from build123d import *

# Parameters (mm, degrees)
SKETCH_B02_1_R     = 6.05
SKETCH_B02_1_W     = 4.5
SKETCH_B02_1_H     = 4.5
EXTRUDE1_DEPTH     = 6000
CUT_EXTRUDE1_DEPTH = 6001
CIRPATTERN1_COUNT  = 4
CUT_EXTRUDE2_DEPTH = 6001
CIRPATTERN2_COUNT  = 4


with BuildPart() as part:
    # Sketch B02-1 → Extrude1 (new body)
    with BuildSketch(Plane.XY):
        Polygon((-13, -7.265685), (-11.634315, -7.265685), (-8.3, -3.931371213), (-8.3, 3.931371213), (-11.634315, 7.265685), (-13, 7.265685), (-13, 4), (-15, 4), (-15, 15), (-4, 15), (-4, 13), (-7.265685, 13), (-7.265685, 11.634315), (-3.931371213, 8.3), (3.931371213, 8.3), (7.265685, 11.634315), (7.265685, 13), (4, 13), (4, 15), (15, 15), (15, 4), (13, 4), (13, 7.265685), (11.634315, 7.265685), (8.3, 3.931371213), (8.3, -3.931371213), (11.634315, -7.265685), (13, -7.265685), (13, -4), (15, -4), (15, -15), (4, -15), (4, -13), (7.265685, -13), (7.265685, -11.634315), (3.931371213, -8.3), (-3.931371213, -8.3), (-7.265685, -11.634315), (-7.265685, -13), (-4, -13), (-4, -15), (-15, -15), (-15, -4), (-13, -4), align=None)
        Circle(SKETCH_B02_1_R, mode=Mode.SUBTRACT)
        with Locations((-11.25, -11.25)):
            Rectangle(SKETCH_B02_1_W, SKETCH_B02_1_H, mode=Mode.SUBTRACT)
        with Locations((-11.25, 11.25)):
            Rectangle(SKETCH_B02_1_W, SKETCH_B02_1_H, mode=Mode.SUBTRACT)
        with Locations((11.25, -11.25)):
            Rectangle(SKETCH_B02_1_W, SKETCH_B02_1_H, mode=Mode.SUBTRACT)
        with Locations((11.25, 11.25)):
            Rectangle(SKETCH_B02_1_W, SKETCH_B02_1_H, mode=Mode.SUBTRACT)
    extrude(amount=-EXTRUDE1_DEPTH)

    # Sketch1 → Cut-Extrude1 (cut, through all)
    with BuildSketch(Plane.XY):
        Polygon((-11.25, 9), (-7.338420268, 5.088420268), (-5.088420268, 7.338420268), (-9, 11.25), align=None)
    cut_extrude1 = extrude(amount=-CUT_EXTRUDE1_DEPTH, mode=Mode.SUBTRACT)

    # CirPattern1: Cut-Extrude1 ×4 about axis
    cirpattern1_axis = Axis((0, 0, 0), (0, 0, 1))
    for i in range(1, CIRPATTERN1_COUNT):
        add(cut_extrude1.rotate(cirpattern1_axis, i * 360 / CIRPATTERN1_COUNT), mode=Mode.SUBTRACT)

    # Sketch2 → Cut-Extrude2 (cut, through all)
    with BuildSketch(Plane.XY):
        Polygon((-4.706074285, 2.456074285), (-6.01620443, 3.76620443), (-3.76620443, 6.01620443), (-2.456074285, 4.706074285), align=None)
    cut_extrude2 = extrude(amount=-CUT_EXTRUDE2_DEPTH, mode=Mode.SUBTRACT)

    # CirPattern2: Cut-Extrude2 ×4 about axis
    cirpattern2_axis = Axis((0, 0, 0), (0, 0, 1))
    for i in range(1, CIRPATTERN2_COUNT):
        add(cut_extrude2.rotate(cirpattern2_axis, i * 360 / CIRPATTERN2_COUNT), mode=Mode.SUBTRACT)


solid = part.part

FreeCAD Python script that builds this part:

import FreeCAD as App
import Part
import Sketcher

V = App.Vector
Q = App.Units.Quantity

doc = App.newDocument("Part")
body = doc.addObject("PartDesign::Body", "Body")

# Sketch on XY plane
sketch1 = body.newObject("Sketcher::SketchObject", "Sketch")
sketch1.AttachmentSupport = (doc.getObject("XY_Plane"), [""])
sketch1.MapMode = "FlatFace"
sketch1.addGeometry([
    Part.LineSegment(V(-11.634315, -7.265685, 0), V(-13, -7.265685, 0)),  # 0
    Part.LineSegment(V(-13, -7.265685, 0), V(-13, -4, 0)),  # 1
    Part.LineSegment(V(-13, -4, 0), V(-15, -4, 0)),  # 2
    Part.LineSegment(V(-15, -4, 0), V(-15, -15, 0)),  # 3
    Part.LineSegment(V(-15, -15, 0), V(-4, -15, 0)),  # 4
    Part.LineSegment(V(-4, -15, 0), V(-4, -13, 0)),  # 5
    Part.LineSegment(V(-4, -13, 0), V(-7.265685, -13, 0)),  # 6
    Part.LineSegment(V(-7.265685, -13, 0), V(-7.265685, -11.634315, 0)),  # 7
    Part.LineSegment(V(-7.265685, -11.634315, 0), V(-3.931371, -8.3, 0)),  # 8
    Part.LineSegment(V(-3.931371, -8.3, 0), V(3.931371, -8.3, 0)),  # 9
    Part.LineSegment(V(3.931371, -8.3, 0), V(7.265685, -11.634315, 0)),  # 10
    Part.LineSegment(V(7.265685, -11.634315, 0), V(7.265685, -13, 0)),  # 11
    Part.LineSegment(V(7.265685, -13, 0), V(4, -13, 0)),  # 12
    Part.LineSegment(V(4, -13, 0), V(4, -15, 0)),  # 13
    Part.LineSegment(V(4, -15, 0), V(15, -15, 0)),  # 14
    Part.LineSegment(V(15, -15, 0), V(15, -4, 0)),  # 15
    Part.LineSegment(V(15, -4, 0), V(13, -4, 0)),  # 16
    Part.LineSegment(V(13, -4, 0), V(13, -7.265685, 0)),  # 17
    Part.LineSegment(V(13, -7.265685, 0), V(11.634315, -7.265685, 0)),  # 18
    Part.LineSegment(V(11.634315, -7.265685, 0), V(8.3, -3.931371, 0)),  # 19
    Part.LineSegment(V(8.3, -3.931371, 0), V(8.3, 3.931371, 0)),  # 20
    Part.LineSegment(V(8.3, 3.931371, 0), V(11.634315, 7.265685, 0)),  # 21
    Part.LineSegment(V(11.634315, 7.265685, 0), V(13, 7.265685, 0)),  # 22
    Part.LineSegment(V(13, 7.265685, 0), V(13, 4, 0)),  # 23
    Part.LineSegment(V(13, 4, 0), V(15, 4, 0)),  # 24
    Part.LineSegment(V(15, 4, 0), V(15, 15, 0)),  # 25
    Part.LineSegment(V(15, 15, 0), V(4, 15, 0)),  # 26
    Part.LineSegment(V(4, 15, 0), V(4, 13, 0)),  # 27
    Part.LineSegment(V(4, 13, 0), V(7.265685, 13, 0)),  # 28
    Part.LineSegment(V(7.265685, 13, 0), V(7.265685, 11.634315, 0)),  # 29
    Part.LineSegment(V(7.265685, 11.634315, 0), V(3.931371, 8.3, 0)),  # 30
    Part.LineSegment(V(3.931371, 8.3, 0), V(-3.931371, 8.3, 0)),  # 31
    Part.LineSegment(V(-3.931371, 8.3, 0), V(-7.265685, 11.634315, 0)),  # 32
    Part.LineSegment(V(-7.265685, 11.634315, 0), V(-7.265685, 13, 0)),  # 33
    Part.LineSegment(V(-7.265685, 13, 0), V(-4, 13, 0)),  # 34
    Part.LineSegment(V(-4, 13, 0), V(-4, 15, 0)),  # 35
    Part.LineSegment(V(-4, 15, 0), V(-15, 15, 0)),  # 36
    Part.LineSegment(V(-15, 15, 0), V(-15, 4, 0)),  # 37
    Part.LineSegment(V(-15, 4, 0), V(-13, 4, 0)),  # 38
    Part.LineSegment(V(-13, 4, 0), V(-13, 7.265685, 0)),  # 39
    Part.LineSegment(V(-13, 7.265685, 0), V(-11.634315, 7.265685, 0)),  # 40
    Part.LineSegment(V(-11.634315, 7.265685, 0), V(-8.3, 3.931371, 0)),  # 41
    Part.LineSegment(V(-8.3, 3.931371, 0), V(-8.3, -3.931371, 0)),  # 42
    Part.LineSegment(V(-8.3, -3.931371, 0), V(-11.634315, -7.265685, 0)),  # 43
    Part.LineSegment(V(9, -13.5, 0), V(9, -9, 0)),  # 44
    Part.LineSegment(V(9, -9, 0), V(13.5, -9, 0)),  # 45
    Part.LineSegment(V(13.5, -9, 0), V(13.5, -13.5, 0)),  # 46
    Part.LineSegment(V(13.5, -13.5, 0), V(9, -13.5, 0)),  # 47
    Part.LineSegment(V(-13.5, -13.5, 0), V(-13.5, -9, 0)),  # 48
    Part.LineSegment(V(-13.5, -9, 0), V(-9, -9, 0)),  # 49
    Part.LineSegment(V(-9, -9, 0), V(-9, -13.5, 0)),  # 50
    Part.LineSegment(V(-9, -13.5, 0), V(-13.5, -13.5, 0)),  # 51
    Part.LineSegment(V(9, 9, 0), V(9, 13.5, 0)),  # 52
    Part.LineSegment(V(9, 13.5, 0), V(13.5, 13.5, 0)),  # 53
    Part.LineSegment(V(13.5, 13.5, 0), V(13.5, 9, 0)),  # 54
    Part.LineSegment(V(13.5, 9, 0), V(9, 9, 0)),  # 55
    Part.Circle(V(0, 0, 0), V(0, 0, 1), 6.05),  # 56
    Part.LineSegment(V(-13.5, 9, 0), V(-13.5, 13.5, 0)),  # 57
    Part.LineSegment(V(-13.5, 13.5, 0), V(-9, 13.5, 0)),  # 58
    Part.LineSegment(V(-9, 13.5, 0), V(-9, 9, 0)),  # 59
    Part.LineSegment(V(-9, 9, 0), V(-13.5, 9, 0)),  # 60
], False)
sketch1.addConstraint([
    Sketcher.Constraint("Coincident", 0, 2, 1, 1),
    Sketcher.Constraint("Coincident", 1, 2, 2, 1),
    Sketcher.Constraint("Coincident", 2, 2, 3, 1),
    Sketcher.Constraint("Coincident", 3, 2, 4, 1),
    Sketcher.Constraint("Coincident", 4, 2, 5, 1),
    Sketcher.Constraint("Coincident", 5, 2, 6, 1),
    Sketcher.Constraint("Coincident", 6, 2, 7, 1),
    Sketcher.Constraint("Coincident", 7, 2, 8, 1),
    Sketcher.Constraint("Coincident", 8, 2, 9, 1),
    Sketcher.Constraint("Coincident", 9, 2, 10, 1),
    Sketcher.Constraint("Coincident", 10, 2, 11, 1),
    Sketcher.Constraint("Coincident", 11, 2, 12, 1),
    Sketcher.Constraint("Coincident", 12, 2, 13, 1),
    Sketcher.Constraint("Coincident", 13, 2, 14, 1),
    Sketcher.Constraint("Coincident", 14, 2, 15, 1),
    Sketcher.Constraint("Coincident", 15, 2, 16, 1),
    Sketcher.Constraint("Coincident", 16, 2, 17, 1),
    Sketcher.Constraint("Coincident", 17, 2, 18, 1),
    Sketcher.Constraint("Coincident", 18, 2, 19, 1),
    Sketcher.Constraint("Coincident", 19, 2, 20, 1),
    Sketcher.Constraint("Coincident", 20, 2, 21, 1),
    Sketcher.Constraint("Coincident", 21, 2, 22, 1),
    Sketcher.Constraint("Coincident", 22, 2, 23, 1),
    Sketcher.Constraint("Coincident", 23, 2, 24, 1),
    Sketcher.Constraint("Coincident", 24, 2, 25, 1),
    Sketcher.Constraint("Coincident", 25, 2, 26, 1),
    Sketcher.Constraint("Coincident", 26, 2, 27, 1),
    Sketcher.Constraint("Coincident", 27, 2, 28, 1),
    Sketcher.Constraint("Coincident", 28, 2, 29, 1),
    Sketcher.Constraint("Coincident", 29, 2, 30, 1),
    Sketcher.Constraint("Coincident", 30, 2, 31, 1),
    Sketcher.Constraint("Coincident", 31, 2, 32, 1),
    Sketcher.Constraint("Coincident", 32, 2, 33, 1),
    Sketcher.Constraint("Coincident", 33, 2, 34, 1),
    Sketcher.Constraint("Coincident", 34, 2, 35, 1),
    Sketcher.Constraint("Coincident", 35, 2, 36, 1),
    Sketcher.Constraint("Coincident", 36, 2, 37, 1),
    Sketcher.Constraint("Coincident", 37, 2, 38, 1),
    Sketcher.Constraint("Coincident", 38, 2, 39, 1),
    Sketcher.Constraint("Coincident", 39, 2, 40, 1),
    Sketcher.Constraint("Coincident", 40, 2, 41, 1),
    Sketcher.Constraint("Coincident", 41, 2, 42, 1),
    Sketcher.Constraint("Coincident", 42, 2, 43, 1),
    Sketcher.Constraint("Coincident", 43, 2, 0, 1),
    Sketcher.Constraint("Coincident", 44, 2, 45, 1),
    Sketcher.Constraint("Coincident", 45, 2, 46, 1),
    Sketcher.Constraint("Coincident", 46, 2, 47, 1),
    Sketcher.Constraint("Coincident", 47, 2, 44, 1),
    Sketcher.Constraint("Coincident", 48, 2, 49, 1),
    Sketcher.Constraint("Coincident", 49, 2, 50, 1),
    Sketcher.Constraint("Coincident", 50, 2, 51, 1),
    Sketcher.Constraint("Coincident", 51, 2, 48, 1),
    Sketcher.Constraint("Coincident", 52, 2, 53, 1),
    Sketcher.Constraint("Coincident", 53, 2, 54, 1),
    Sketcher.Constraint("Coincident", 54, 2, 55, 1),
    Sketcher.Constraint("Coincident", 55, 2, 52, 1),
    Sketcher.Constraint("Coincident", 57, 2, 58, 1),
    Sketcher.Constraint("Coincident", 58, 2, 59, 1),
    Sketcher.Constraint("Coincident", 59, 2, 60, 1),
    Sketcher.Constraint("Coincident", 60, 2, 57, 1),
    Sketcher.Constraint("Horizontal", 0),
    Sketcher.Constraint("Vertical", 1),
    Sketcher.Constraint("Horizontal", 2),
    Sketcher.Constraint("Vertical", 3),
    Sketcher.Constraint("Horizontal", 4),
    Sketcher.Constraint("Vertical", 5),
    Sketcher.Constraint("Horizontal", 6),
    Sketcher.Constraint("Vertical", 7),
    Sketcher.Constraint("Horizontal", 9),
    Sketcher.Constraint("Vertical", 11),
    Sketcher.Constraint("Horizontal", 12),
    Sketcher.Constraint("Vertical", 13),
    Sketcher.Constraint("Horizontal", 14),
    Sketcher.Constraint("Vertical", 15),
    Sketcher.Constraint("Horizontal", 16),
    Sketcher.Constraint("Vertical", 17),
    Sketcher.Constraint("Horizontal", 18),
    Sketcher.Constraint("Vertical", 20),
    Sketcher.Constraint("Horizontal", 22),
    Sketcher.Constraint("Vertical", 23),
    Sketcher.Constraint("Horizontal", 24),
    Sketcher.Constraint("Vertical", 25),
    Sketcher.Constraint("Horizontal", 26),
    Sketcher.Constraint("Vertical", 27),
    Sketcher.Constraint("Horizontal", 28),
    Sketcher.Constraint("Vertical", 29),
    Sketcher.Constraint("Horizontal", 31),
    Sketcher.Constraint("Vertical", 33),
    Sketcher.Constraint("Horizontal", 34),
    Sketcher.Constraint("Vertical", 35),
    Sketcher.Constraint("Horizontal", 36),
    Sketcher.Constraint("Vertical", 37),
    Sketcher.Constraint("Horizontal", 38),
    Sketcher.Constraint("Vertical", 39),
    Sketcher.Constraint("Horizontal", 40),
    Sketcher.Constraint("Vertical", 42),
    Sketcher.Constraint("Vertical", 44),
    Sketcher.Constraint("Horizontal", 45),
    Sketcher.Constraint("Vertical", 46),
    Sketcher.Constraint("Horizontal", 47),
    Sketcher.Constraint("Vertical", 48),
    Sketcher.Constraint("Horizontal", 49),
    Sketcher.Constraint("Vertical", 50),
    Sketcher.Constraint("Horizontal", 51),
    Sketcher.Constraint("Vertical", 52),
    Sketcher.Constraint("Horizontal", 53),
    Sketcher.Constraint("Vertical", 54),
    Sketcher.Constraint("Horizontal", 55),
    Sketcher.Constraint("Vertical", 57),
    Sketcher.Constraint("Horizontal", 58),
    Sketcher.Constraint("Vertical", 59),
    Sketcher.Constraint("Horizontal", 60),
    Sketcher.Constraint("Coincident", 56, 3, -1, 1),
    Sketcher.Constraint("Symmetric", 0, 2, 22, 2, -1, 1),
    Sketcher.Constraint("Symmetric", 2, 2, 24, 2, -1, 1),
    Sketcher.Constraint("Symmetric", 4, 2, 26, 2, -1, 1),
    Sketcher.Constraint("Symmetric", 6, 2, 28, 2, -1, 1),
    Sketcher.Constraint("Symmetric", 8, 2, 30, 2, -1, 1),
    Sketcher.Constraint("Symmetric", 10, 2, 32, 2, -1, 1),
    Sketcher.Constraint("Symmetric", 12, 2, 34, 2, -1, 1),
    Sketcher.Constraint("Symmetric", 14, 2, 36, 2, -1, 1),
    Sketcher.Constraint("Symmetric", 16, 2, 38, 2, -1, 1),
    Sketcher.Constraint("Symmetric", 18, 2, 40, 2, -1, 1),
    Sketcher.Constraint("Symmetric", 19, 2, 41, 2, -1, 1),
    Sketcher.Constraint("Symmetric", 50, 2, 52, 2, -1, 1),
    Sketcher.Constraint("Symmetric", 48, 2, 54, 2, -1, 1),
    Sketcher.Constraint("Symmetric", 46, 2, 57, 2, -1, 1),
    Sketcher.Constraint("Symmetric", 44, 2, 59, 2, -1, 1),
    Sketcher.Constraint("Symmetric", 7, 2, 10, 2, -2),
    Sketcher.Constraint("Symmetric", 5, 2, 12, 2, -2),
    Sketcher.Constraint("Symmetric", 3, 2, 14, 2, -2),
    Sketcher.Constraint("Symmetric", 1, 2, 16, 2, -2),
    Sketcher.Constraint("Symmetric", 21, 2, 40, 2, -2),
    Sketcher.Constraint("Symmetric", 45, 2, 48, 2, -2),
    Sketcher.Constraint("Symmetric", 47, 2, 50, 2, -2),
    Sketcher.Constraint("Perpendicular", 8, 10),
    Sketcher.Constraint("Parallel", 10, 19),
    Sketcher.Constraint("Perpendicular", 19, 21),
    Sketcher.Constraint("Parallel", 21, 30),
    Sketcher.Constraint("Perpendicular", 30, 32),
    Sketcher.Constraint("Perpendicular", 41, 43),
    Sketcher.Constraint("Horizontal", 20, 2, 41, 2),
    Sketcher.Constraint("Horizontal", 19, 2, 42, 2),
    Sketcher.Constraint("Equal", 34, 1),
    Sketcher.Constraint("Equal", 36, 3),
    Sketcher.Constraint("Equal", 38, 5),
    Sketcher.Constraint("Equal", 40, 7),
    Sketcher.Constraint("Equal", 31, 20),
    Sketcher.Constraint("Equal", 60, 44),
    Sketcher.Constraint("Equal", 10, 19),
    Sketcher.Constraint("Diameter", 56, 12.1),
    Sketcher.Constraint("DistanceX", 2, 2, 2, 1, 2.0),
    Sketcher.Constraint("DistanceX", 4, 1, 4, 2, 11.0),
    Sketcher.Constraint("DistanceX", 45, 1, 45, 2, 4.5),
    Sketcher.Constraint("DistanceX", 0, 2, -1, 1, 13.0),
    Sketcher.Constraint("DistanceX", -1, 1, 44, 2, 9.0),
    Sketcher.Constraint("DistanceY", 44, 2, -1, 1, 9.0),
    Sketcher.Constraint("DistanceY", 8, 2, -1, 1, 8.3),
    Sketcher.Constraint("DistanceX", 0, 2, 0, 1, 1.365685),
    Sketcher.Constraint("DistanceX", 6, 2, 6, 1, 3.265685),
])
pad1 = body.newObject("PartDesign::Pad", "Pad")
pad1.Profile = sketch1
pad1.Length = 6000
pad1.Reversed = True

# Sketch on XY plane
sketch2 = body.newObject("Sketcher::SketchObject", "Sketch001")
sketch2.AttachmentSupport = (doc.getObject("XY_Plane"), [""])
sketch2.MapMode = "FlatFace"
sketch2.addGeometry([
    Part.LineSegment(V(-11.25, 9, 0), V(-7.33842, 5.08842, 0)),
    Part.LineSegment(V(-7.33842, 5.08842, 0), V(-5.08842, 7.33842, 0)),
    Part.LineSegment(V(-5.08842, 7.33842, 0), V(-9, 11.25, 0)),
    Part.LineSegment(V(-9, 11.25, 0), V(-11.25, 9, 0)),
], False)
sketch2.addConstraint([
    Sketcher.Constraint("Coincident", 0, 2, 1, 1),
    Sketcher.Constraint("Coincident", 1, 2, 2, 1),
    Sketcher.Constraint("Coincident", 2, 2, 3, 1),
    Sketcher.Constraint("Coincident", 3, 2, 0, 1),
    Sketcher.Constraint("Perpendicular", 0, 1),
    Sketcher.Constraint("Perpendicular", 1, 2),
    Sketcher.Constraint("Perpendicular", 2, 3),
    Sketcher.Constraint("Angle", 0, Q("-45 deg")),
    Sketcher.Constraint("DistanceX", 2, 2, -1, 1, 9.0),
    Sketcher.Constraint("DistanceY", -1, 1, 3, 2, 9.0),
    Sketcher.Constraint("DistanceY", -1, 1, 2, 2, 11.25),
    Sketcher.Constraint("Distance", 0, 5.531809),
])
pocket1 = body.newObject("PartDesign::Pocket", "Pocket")
pocket1.Profile = sketch2
pocket1.Type = "ThroughAll"
doc.recompute()

polarpattern = body.newObject("PartDesign::PolarPattern", "PolarPattern")
polarpattern.Originals = [pocket1]
polarpattern.Axis = (doc.getObject("Z_Axis"), [""])
polarpattern.Angle = 360
polarpattern.Occurrences = 4
body.Tip = polarpattern

# Sketch on XY plane
sketch3 = body.newObject("Sketcher::SketchObject", "Sketch002")
sketch3.AttachmentSupport = (doc.getObject("XY_Plane"), [""])
sketch3.MapMode = "FlatFace"
sketch3.addGeometry([
    Part.LineSegment(V(-6.016204, 3.766204, 0), V(-4.706074, 2.456074, 0)),
    Part.LineSegment(V(-4.706074, 2.456074, 0), V(-2.456074, 4.706074, 0)),
    Part.LineSegment(V(-2.456074, 4.706074, 0), V(-3.766204, 6.016204, 0)),
    Part.LineSegment(V(-3.766204, 6.016204, 0), V(-6.016204, 3.766204, 0)),
], False)
sketch3.addConstraint([
    Sketcher.Constraint("Coincident", 0, 2, 1, 1),
    Sketcher.Constraint("Coincident", 1, 2, 2, 1),
    Sketcher.Constraint("Coincident", 2, 2, 3, 1),
    Sketcher.Constraint("Coincident", 3, 2, 0, 1),
    Sketcher.Constraint("Perpendicular", 0, 1),
    Sketcher.Constraint("Perpendicular", 1, 2),
    Sketcher.Constraint("Perpendicular", 2, 3),
    Sketcher.Constraint("Angle", 0, Q("-45 deg")),
    Sketcher.Constraint("DistanceX", 0, 2, 1, 2, 2.25),
    Sketcher.Constraint("DistanceX", 2, 2, 1, 2, 1.31013),
    Sketcher.Constraint("DistanceX", 0, 2, -1, 1, 4.706074),
    Sketcher.Constraint("DistanceY", -1, 1, 0, 2, 2.456074),
])
pocket2 = body.newObject("PartDesign::Pocket", "Pocket001")
pocket2.Profile = sketch3
pocket2.Type = "ThroughAll"
doc.recompute()

polarpattern2 = body.newObject("PartDesign::PolarPattern", "PolarPattern001")
polarpattern2.Originals = [pocket2]
polarpattern2.Axis = (doc.getObject("Z_Axis"), [""])
polarpattern2.Angle = 360
polarpattern2.Occurrences = 4
body.Tip = polarpattern2

doc.recompute()
